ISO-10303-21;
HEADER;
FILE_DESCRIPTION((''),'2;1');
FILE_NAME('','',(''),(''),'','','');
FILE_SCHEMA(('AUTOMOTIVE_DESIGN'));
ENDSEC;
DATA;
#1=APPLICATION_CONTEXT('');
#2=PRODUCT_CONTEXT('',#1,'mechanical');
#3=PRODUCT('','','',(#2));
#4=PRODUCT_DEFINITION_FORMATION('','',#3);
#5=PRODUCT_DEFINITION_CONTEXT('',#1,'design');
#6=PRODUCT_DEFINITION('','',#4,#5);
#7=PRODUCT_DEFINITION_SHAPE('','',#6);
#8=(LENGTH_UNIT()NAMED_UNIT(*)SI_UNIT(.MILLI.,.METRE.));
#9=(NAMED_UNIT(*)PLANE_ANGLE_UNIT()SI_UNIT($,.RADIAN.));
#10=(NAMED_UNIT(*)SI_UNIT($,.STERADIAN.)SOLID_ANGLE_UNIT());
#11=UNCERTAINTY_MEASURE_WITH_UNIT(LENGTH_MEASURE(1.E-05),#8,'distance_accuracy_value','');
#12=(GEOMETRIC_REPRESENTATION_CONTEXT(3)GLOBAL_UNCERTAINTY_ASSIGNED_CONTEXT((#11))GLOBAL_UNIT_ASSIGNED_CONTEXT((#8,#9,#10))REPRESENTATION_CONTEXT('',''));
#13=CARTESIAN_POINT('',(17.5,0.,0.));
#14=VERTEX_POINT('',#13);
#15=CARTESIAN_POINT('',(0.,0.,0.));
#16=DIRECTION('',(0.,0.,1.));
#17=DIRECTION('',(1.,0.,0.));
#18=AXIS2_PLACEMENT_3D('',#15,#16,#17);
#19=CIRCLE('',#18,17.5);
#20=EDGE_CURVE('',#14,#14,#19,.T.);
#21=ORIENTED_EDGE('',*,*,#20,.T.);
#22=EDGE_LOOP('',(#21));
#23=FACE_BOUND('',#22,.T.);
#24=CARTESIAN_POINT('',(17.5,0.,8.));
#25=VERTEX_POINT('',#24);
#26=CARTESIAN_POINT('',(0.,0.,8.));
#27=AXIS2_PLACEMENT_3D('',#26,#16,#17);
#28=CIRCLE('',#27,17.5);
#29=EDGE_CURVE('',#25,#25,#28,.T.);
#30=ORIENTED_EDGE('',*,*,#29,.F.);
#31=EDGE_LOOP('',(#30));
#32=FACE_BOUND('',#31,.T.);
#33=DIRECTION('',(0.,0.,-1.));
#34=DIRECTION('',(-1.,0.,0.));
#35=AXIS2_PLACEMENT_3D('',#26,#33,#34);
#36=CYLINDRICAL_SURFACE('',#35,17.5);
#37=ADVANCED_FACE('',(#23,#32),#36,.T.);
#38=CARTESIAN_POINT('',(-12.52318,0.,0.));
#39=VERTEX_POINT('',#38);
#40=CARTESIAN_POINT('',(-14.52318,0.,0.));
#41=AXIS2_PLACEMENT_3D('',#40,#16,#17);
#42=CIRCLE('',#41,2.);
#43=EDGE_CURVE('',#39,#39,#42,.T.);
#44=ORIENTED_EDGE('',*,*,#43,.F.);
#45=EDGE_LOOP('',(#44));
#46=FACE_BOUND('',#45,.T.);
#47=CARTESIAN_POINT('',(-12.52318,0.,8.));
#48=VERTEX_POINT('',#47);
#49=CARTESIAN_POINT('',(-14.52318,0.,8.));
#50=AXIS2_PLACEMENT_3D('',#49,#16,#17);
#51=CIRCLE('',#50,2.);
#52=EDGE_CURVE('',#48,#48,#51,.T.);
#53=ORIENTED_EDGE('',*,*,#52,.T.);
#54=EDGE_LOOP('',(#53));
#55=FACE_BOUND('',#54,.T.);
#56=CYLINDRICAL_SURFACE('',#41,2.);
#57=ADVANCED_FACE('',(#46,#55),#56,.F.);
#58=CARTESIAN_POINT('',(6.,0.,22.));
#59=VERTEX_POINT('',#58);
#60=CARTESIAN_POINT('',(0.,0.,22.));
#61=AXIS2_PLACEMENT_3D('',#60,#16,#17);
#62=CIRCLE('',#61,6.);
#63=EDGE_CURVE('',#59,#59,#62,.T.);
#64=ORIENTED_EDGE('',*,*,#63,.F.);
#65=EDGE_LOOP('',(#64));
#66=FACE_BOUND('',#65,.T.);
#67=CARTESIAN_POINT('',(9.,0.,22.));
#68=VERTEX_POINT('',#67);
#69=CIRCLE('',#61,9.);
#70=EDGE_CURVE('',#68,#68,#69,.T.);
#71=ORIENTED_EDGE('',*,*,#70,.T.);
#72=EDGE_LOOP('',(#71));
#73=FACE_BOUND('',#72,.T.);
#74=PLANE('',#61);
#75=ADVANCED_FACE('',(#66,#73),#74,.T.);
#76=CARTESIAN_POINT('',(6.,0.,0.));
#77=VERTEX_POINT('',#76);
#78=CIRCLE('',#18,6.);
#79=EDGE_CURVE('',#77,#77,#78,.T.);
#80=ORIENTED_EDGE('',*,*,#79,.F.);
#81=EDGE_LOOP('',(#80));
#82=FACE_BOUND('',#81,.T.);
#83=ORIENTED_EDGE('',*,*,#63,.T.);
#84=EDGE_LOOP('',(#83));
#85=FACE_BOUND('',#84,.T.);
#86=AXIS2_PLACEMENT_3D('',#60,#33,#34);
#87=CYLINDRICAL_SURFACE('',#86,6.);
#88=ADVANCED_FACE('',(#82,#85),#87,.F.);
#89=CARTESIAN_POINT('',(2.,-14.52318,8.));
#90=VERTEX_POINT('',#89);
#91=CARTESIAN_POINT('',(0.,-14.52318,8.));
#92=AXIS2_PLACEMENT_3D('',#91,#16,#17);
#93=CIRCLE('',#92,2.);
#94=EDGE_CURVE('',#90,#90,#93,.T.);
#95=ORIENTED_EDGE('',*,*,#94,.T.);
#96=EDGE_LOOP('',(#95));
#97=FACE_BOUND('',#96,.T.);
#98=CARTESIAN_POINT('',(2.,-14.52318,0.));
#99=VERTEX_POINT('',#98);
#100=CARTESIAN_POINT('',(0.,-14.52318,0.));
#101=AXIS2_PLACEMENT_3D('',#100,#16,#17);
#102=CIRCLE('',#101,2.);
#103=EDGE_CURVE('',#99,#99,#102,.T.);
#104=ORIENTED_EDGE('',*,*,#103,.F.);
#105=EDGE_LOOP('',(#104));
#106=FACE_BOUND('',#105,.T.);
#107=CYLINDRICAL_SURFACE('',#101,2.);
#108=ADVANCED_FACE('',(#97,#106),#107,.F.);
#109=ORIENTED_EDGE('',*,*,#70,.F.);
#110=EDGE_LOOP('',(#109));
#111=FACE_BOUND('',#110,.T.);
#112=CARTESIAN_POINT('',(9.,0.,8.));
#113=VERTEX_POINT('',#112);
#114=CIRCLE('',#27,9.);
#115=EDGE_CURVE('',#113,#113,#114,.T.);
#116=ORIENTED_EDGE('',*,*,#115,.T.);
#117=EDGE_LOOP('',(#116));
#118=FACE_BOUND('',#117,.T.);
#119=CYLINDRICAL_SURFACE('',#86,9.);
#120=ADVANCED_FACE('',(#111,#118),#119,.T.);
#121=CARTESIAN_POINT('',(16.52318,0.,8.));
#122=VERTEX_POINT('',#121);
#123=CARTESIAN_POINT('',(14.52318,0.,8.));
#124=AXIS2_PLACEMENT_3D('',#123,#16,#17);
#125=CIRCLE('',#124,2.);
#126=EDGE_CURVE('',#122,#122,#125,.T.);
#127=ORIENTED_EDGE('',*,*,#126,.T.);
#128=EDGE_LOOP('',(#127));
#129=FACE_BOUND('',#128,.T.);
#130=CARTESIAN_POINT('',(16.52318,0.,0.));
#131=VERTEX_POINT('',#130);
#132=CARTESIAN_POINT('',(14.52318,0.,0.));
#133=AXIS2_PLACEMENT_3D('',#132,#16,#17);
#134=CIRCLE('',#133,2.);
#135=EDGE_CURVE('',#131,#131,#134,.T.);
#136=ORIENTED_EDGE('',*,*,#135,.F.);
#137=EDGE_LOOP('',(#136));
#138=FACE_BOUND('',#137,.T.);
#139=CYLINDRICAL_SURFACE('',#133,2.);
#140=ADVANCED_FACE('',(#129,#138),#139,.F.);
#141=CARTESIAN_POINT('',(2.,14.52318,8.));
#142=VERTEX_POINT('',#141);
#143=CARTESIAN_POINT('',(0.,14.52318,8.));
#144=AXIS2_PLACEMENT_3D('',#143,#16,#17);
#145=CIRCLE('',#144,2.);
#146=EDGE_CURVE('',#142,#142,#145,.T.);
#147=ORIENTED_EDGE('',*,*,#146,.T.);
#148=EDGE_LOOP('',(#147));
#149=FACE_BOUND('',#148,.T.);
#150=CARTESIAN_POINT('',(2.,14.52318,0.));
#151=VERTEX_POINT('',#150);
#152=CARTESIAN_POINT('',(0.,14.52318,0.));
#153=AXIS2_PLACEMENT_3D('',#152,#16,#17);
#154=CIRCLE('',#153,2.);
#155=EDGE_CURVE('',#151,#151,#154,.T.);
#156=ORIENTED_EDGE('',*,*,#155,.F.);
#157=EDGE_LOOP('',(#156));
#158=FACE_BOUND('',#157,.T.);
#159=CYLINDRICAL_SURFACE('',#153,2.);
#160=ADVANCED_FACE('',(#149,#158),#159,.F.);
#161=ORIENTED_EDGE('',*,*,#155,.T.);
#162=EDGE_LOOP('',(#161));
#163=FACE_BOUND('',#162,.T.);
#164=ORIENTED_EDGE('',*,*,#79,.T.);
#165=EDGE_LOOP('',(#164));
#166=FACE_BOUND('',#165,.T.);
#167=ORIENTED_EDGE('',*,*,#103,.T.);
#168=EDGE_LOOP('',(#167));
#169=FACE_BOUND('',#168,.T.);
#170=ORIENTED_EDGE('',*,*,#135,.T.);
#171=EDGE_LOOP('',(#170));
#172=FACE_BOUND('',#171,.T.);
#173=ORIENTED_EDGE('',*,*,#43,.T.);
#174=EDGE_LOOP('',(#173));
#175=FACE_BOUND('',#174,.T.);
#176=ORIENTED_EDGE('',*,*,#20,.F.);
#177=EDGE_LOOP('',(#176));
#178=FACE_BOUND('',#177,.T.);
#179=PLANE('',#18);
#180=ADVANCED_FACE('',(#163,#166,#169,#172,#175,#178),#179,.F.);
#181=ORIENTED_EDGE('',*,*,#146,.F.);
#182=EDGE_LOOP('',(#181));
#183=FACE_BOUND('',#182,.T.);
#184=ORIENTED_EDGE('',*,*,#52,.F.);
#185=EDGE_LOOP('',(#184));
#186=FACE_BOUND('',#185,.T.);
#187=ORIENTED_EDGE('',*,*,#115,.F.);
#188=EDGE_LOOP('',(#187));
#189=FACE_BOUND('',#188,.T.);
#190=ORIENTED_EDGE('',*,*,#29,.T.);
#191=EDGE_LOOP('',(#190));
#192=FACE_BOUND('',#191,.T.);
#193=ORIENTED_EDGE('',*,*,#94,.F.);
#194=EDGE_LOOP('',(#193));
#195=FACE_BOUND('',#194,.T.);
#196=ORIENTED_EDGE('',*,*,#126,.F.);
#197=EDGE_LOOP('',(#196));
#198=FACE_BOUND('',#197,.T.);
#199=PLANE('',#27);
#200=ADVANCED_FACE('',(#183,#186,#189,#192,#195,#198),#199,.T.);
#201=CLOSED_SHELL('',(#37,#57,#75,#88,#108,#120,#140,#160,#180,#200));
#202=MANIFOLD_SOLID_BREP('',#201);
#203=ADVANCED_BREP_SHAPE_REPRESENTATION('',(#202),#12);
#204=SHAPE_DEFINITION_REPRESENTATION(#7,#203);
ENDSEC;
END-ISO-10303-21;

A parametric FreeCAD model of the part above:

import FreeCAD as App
import Part
import Sketcher

V = App.Vector

doc = App.newDocument("Part")
body = doc.addObject("PartDesign::Body", "Body")

# Sketch on XY plane
sketch1 = body.newObject("Sketcher::SketchObject", "Sketch")
sketch1.AttachmentSupport = (doc.getObject("XY_Plane"), [""])
sketch1.MapMode = "FlatFace"
sketch1.addGeometry(Part.Circle(V(0, 0, 0), V(0, 0, 1), 17.5), False)
sketch1.addConstraint([
    Sketcher.Constraint("Coincident", 0, 3, -1, 1),
    Sketcher.Constraint("Diameter", 0, 35.0),
])
pad1 = body.newObject("PartDesign::Pad", "Pad")
pad1.Profile = sketch1
pad1.Length = 8

# Sketch on XY plane
sketch2 = body.newObject("Sketcher::SketchObject", "Sketch001")
sketch2.AttachmentSupport = (doc.getObject("XY_Plane"), [""])
sketch2.MapMode = "FlatFace"
sketch2.AttachmentOffset = App.Placement(V(0, 0, 8), App.Rotation())
sketch2.addGeometry([
    Part.Circle(V(0, 14.52318, 0), V(0, 0, 1), 2),
    Part.Circle(V(14.52318, 0, 0), V(0, 0, 1), 2),
    Part.Circle(V(0, -14.52318, 0), V(0, 0, 1), 2),
    Part.Circle(V(-14.52318, 0, 0), V(0, 0, 1), 2),
], False)
sketch2.addConstraint([
    Sketcher.Constraint("Equal", 0, 1),
    Sketcher.Constraint("Equal", 1, 2),
    Sketcher.Constraint("Equal", 2, 3),
    Sketcher.Constraint("Symmetric", 0, 3, 2, 3, -1, 1),
    Sketcher.Constraint("Symmetric", 1, 3, 3, 3, -1, 1),
    Sketcher.Constraint("PointOnObject", 0, 3, -2),
    Sketcher.Constraint("PointOnObject", 1, 3, -1),
    Sketcher.Constraint("Diameter", 0, 4.0),
    Sketcher.Constraint("DistanceY", -1, 1, 0, 3, 14.52318),
    Sketcher.Constraint("DistanceX", -1, 1, 1, 3, 14.52318),
])
pocket1 = body.newObject("PartDesign::Pocket", "Pocket")
pocket1.Profile = sketch2
pocket1.Type = "ThroughAll"
pocket1.Midplane = True

# Sketch on XY plane
sketch3 = body.newObject("Sketcher::SketchObject", "Sketch002")
sketch3.AttachmentSupport = (doc.getObject("XY_Plane"), [""])
sketch3.MapMode = "FlatFace"
sketch3.AttachmentOffset = App.Placement(V(0, 0, 8), App.Rotation())
sketch3.addGeometry([
    Part.Circle(V(0, 0, 0), V(0, 0, 1), 9),
    Part.Circle(V(0, 0, 0), V(0, 0, 1), 6),
], False)
sketch3.addConstraint([
    Sketcher.Constraint("Coincident", 0, 3, -1, 1),
    Sketcher.Constraint("Coincident", 1, 3, -1, 1),
    Sketcher.Constraint("Diameter", 0, 18.0),
    Sketcher.Constraint("Diameter", 1, 12.0),
])
pad2 = body.newObject("PartDesign::Pad", "Pad001")
pad2.Profile = sketch3
pad2.Length = 14

# Sketch on XY plane
sketch4 = body.newObject("Sketcher::SketchObject", "Sketch003")
sketch4.AttachmentSupport = (doc.getObject("XY_Plane"), [""])
sketch4.MapMode = "FlatFace"
sketch4.AttachmentOffset = App.Placement(V(0, 0, 8), App.Rotation())
sketch4.addGeometry(Part.Circle(V(0, 0, 0), V(0, 0, 1), 6), False)
sketch4.addConstraint([
    Sketcher.Constraint("Coincident", 0, 3, -1, 1),
    Sketcher.Constraint("Diameter", 0, 12.0),
])
pocket2 = body.newObject("PartDesign::Pocket", "Pocket001")
pocket2.Profile = sketch4
pocket2.Type = "ThroughAll"
pocket2.Midplane = True

doc.recompute()
